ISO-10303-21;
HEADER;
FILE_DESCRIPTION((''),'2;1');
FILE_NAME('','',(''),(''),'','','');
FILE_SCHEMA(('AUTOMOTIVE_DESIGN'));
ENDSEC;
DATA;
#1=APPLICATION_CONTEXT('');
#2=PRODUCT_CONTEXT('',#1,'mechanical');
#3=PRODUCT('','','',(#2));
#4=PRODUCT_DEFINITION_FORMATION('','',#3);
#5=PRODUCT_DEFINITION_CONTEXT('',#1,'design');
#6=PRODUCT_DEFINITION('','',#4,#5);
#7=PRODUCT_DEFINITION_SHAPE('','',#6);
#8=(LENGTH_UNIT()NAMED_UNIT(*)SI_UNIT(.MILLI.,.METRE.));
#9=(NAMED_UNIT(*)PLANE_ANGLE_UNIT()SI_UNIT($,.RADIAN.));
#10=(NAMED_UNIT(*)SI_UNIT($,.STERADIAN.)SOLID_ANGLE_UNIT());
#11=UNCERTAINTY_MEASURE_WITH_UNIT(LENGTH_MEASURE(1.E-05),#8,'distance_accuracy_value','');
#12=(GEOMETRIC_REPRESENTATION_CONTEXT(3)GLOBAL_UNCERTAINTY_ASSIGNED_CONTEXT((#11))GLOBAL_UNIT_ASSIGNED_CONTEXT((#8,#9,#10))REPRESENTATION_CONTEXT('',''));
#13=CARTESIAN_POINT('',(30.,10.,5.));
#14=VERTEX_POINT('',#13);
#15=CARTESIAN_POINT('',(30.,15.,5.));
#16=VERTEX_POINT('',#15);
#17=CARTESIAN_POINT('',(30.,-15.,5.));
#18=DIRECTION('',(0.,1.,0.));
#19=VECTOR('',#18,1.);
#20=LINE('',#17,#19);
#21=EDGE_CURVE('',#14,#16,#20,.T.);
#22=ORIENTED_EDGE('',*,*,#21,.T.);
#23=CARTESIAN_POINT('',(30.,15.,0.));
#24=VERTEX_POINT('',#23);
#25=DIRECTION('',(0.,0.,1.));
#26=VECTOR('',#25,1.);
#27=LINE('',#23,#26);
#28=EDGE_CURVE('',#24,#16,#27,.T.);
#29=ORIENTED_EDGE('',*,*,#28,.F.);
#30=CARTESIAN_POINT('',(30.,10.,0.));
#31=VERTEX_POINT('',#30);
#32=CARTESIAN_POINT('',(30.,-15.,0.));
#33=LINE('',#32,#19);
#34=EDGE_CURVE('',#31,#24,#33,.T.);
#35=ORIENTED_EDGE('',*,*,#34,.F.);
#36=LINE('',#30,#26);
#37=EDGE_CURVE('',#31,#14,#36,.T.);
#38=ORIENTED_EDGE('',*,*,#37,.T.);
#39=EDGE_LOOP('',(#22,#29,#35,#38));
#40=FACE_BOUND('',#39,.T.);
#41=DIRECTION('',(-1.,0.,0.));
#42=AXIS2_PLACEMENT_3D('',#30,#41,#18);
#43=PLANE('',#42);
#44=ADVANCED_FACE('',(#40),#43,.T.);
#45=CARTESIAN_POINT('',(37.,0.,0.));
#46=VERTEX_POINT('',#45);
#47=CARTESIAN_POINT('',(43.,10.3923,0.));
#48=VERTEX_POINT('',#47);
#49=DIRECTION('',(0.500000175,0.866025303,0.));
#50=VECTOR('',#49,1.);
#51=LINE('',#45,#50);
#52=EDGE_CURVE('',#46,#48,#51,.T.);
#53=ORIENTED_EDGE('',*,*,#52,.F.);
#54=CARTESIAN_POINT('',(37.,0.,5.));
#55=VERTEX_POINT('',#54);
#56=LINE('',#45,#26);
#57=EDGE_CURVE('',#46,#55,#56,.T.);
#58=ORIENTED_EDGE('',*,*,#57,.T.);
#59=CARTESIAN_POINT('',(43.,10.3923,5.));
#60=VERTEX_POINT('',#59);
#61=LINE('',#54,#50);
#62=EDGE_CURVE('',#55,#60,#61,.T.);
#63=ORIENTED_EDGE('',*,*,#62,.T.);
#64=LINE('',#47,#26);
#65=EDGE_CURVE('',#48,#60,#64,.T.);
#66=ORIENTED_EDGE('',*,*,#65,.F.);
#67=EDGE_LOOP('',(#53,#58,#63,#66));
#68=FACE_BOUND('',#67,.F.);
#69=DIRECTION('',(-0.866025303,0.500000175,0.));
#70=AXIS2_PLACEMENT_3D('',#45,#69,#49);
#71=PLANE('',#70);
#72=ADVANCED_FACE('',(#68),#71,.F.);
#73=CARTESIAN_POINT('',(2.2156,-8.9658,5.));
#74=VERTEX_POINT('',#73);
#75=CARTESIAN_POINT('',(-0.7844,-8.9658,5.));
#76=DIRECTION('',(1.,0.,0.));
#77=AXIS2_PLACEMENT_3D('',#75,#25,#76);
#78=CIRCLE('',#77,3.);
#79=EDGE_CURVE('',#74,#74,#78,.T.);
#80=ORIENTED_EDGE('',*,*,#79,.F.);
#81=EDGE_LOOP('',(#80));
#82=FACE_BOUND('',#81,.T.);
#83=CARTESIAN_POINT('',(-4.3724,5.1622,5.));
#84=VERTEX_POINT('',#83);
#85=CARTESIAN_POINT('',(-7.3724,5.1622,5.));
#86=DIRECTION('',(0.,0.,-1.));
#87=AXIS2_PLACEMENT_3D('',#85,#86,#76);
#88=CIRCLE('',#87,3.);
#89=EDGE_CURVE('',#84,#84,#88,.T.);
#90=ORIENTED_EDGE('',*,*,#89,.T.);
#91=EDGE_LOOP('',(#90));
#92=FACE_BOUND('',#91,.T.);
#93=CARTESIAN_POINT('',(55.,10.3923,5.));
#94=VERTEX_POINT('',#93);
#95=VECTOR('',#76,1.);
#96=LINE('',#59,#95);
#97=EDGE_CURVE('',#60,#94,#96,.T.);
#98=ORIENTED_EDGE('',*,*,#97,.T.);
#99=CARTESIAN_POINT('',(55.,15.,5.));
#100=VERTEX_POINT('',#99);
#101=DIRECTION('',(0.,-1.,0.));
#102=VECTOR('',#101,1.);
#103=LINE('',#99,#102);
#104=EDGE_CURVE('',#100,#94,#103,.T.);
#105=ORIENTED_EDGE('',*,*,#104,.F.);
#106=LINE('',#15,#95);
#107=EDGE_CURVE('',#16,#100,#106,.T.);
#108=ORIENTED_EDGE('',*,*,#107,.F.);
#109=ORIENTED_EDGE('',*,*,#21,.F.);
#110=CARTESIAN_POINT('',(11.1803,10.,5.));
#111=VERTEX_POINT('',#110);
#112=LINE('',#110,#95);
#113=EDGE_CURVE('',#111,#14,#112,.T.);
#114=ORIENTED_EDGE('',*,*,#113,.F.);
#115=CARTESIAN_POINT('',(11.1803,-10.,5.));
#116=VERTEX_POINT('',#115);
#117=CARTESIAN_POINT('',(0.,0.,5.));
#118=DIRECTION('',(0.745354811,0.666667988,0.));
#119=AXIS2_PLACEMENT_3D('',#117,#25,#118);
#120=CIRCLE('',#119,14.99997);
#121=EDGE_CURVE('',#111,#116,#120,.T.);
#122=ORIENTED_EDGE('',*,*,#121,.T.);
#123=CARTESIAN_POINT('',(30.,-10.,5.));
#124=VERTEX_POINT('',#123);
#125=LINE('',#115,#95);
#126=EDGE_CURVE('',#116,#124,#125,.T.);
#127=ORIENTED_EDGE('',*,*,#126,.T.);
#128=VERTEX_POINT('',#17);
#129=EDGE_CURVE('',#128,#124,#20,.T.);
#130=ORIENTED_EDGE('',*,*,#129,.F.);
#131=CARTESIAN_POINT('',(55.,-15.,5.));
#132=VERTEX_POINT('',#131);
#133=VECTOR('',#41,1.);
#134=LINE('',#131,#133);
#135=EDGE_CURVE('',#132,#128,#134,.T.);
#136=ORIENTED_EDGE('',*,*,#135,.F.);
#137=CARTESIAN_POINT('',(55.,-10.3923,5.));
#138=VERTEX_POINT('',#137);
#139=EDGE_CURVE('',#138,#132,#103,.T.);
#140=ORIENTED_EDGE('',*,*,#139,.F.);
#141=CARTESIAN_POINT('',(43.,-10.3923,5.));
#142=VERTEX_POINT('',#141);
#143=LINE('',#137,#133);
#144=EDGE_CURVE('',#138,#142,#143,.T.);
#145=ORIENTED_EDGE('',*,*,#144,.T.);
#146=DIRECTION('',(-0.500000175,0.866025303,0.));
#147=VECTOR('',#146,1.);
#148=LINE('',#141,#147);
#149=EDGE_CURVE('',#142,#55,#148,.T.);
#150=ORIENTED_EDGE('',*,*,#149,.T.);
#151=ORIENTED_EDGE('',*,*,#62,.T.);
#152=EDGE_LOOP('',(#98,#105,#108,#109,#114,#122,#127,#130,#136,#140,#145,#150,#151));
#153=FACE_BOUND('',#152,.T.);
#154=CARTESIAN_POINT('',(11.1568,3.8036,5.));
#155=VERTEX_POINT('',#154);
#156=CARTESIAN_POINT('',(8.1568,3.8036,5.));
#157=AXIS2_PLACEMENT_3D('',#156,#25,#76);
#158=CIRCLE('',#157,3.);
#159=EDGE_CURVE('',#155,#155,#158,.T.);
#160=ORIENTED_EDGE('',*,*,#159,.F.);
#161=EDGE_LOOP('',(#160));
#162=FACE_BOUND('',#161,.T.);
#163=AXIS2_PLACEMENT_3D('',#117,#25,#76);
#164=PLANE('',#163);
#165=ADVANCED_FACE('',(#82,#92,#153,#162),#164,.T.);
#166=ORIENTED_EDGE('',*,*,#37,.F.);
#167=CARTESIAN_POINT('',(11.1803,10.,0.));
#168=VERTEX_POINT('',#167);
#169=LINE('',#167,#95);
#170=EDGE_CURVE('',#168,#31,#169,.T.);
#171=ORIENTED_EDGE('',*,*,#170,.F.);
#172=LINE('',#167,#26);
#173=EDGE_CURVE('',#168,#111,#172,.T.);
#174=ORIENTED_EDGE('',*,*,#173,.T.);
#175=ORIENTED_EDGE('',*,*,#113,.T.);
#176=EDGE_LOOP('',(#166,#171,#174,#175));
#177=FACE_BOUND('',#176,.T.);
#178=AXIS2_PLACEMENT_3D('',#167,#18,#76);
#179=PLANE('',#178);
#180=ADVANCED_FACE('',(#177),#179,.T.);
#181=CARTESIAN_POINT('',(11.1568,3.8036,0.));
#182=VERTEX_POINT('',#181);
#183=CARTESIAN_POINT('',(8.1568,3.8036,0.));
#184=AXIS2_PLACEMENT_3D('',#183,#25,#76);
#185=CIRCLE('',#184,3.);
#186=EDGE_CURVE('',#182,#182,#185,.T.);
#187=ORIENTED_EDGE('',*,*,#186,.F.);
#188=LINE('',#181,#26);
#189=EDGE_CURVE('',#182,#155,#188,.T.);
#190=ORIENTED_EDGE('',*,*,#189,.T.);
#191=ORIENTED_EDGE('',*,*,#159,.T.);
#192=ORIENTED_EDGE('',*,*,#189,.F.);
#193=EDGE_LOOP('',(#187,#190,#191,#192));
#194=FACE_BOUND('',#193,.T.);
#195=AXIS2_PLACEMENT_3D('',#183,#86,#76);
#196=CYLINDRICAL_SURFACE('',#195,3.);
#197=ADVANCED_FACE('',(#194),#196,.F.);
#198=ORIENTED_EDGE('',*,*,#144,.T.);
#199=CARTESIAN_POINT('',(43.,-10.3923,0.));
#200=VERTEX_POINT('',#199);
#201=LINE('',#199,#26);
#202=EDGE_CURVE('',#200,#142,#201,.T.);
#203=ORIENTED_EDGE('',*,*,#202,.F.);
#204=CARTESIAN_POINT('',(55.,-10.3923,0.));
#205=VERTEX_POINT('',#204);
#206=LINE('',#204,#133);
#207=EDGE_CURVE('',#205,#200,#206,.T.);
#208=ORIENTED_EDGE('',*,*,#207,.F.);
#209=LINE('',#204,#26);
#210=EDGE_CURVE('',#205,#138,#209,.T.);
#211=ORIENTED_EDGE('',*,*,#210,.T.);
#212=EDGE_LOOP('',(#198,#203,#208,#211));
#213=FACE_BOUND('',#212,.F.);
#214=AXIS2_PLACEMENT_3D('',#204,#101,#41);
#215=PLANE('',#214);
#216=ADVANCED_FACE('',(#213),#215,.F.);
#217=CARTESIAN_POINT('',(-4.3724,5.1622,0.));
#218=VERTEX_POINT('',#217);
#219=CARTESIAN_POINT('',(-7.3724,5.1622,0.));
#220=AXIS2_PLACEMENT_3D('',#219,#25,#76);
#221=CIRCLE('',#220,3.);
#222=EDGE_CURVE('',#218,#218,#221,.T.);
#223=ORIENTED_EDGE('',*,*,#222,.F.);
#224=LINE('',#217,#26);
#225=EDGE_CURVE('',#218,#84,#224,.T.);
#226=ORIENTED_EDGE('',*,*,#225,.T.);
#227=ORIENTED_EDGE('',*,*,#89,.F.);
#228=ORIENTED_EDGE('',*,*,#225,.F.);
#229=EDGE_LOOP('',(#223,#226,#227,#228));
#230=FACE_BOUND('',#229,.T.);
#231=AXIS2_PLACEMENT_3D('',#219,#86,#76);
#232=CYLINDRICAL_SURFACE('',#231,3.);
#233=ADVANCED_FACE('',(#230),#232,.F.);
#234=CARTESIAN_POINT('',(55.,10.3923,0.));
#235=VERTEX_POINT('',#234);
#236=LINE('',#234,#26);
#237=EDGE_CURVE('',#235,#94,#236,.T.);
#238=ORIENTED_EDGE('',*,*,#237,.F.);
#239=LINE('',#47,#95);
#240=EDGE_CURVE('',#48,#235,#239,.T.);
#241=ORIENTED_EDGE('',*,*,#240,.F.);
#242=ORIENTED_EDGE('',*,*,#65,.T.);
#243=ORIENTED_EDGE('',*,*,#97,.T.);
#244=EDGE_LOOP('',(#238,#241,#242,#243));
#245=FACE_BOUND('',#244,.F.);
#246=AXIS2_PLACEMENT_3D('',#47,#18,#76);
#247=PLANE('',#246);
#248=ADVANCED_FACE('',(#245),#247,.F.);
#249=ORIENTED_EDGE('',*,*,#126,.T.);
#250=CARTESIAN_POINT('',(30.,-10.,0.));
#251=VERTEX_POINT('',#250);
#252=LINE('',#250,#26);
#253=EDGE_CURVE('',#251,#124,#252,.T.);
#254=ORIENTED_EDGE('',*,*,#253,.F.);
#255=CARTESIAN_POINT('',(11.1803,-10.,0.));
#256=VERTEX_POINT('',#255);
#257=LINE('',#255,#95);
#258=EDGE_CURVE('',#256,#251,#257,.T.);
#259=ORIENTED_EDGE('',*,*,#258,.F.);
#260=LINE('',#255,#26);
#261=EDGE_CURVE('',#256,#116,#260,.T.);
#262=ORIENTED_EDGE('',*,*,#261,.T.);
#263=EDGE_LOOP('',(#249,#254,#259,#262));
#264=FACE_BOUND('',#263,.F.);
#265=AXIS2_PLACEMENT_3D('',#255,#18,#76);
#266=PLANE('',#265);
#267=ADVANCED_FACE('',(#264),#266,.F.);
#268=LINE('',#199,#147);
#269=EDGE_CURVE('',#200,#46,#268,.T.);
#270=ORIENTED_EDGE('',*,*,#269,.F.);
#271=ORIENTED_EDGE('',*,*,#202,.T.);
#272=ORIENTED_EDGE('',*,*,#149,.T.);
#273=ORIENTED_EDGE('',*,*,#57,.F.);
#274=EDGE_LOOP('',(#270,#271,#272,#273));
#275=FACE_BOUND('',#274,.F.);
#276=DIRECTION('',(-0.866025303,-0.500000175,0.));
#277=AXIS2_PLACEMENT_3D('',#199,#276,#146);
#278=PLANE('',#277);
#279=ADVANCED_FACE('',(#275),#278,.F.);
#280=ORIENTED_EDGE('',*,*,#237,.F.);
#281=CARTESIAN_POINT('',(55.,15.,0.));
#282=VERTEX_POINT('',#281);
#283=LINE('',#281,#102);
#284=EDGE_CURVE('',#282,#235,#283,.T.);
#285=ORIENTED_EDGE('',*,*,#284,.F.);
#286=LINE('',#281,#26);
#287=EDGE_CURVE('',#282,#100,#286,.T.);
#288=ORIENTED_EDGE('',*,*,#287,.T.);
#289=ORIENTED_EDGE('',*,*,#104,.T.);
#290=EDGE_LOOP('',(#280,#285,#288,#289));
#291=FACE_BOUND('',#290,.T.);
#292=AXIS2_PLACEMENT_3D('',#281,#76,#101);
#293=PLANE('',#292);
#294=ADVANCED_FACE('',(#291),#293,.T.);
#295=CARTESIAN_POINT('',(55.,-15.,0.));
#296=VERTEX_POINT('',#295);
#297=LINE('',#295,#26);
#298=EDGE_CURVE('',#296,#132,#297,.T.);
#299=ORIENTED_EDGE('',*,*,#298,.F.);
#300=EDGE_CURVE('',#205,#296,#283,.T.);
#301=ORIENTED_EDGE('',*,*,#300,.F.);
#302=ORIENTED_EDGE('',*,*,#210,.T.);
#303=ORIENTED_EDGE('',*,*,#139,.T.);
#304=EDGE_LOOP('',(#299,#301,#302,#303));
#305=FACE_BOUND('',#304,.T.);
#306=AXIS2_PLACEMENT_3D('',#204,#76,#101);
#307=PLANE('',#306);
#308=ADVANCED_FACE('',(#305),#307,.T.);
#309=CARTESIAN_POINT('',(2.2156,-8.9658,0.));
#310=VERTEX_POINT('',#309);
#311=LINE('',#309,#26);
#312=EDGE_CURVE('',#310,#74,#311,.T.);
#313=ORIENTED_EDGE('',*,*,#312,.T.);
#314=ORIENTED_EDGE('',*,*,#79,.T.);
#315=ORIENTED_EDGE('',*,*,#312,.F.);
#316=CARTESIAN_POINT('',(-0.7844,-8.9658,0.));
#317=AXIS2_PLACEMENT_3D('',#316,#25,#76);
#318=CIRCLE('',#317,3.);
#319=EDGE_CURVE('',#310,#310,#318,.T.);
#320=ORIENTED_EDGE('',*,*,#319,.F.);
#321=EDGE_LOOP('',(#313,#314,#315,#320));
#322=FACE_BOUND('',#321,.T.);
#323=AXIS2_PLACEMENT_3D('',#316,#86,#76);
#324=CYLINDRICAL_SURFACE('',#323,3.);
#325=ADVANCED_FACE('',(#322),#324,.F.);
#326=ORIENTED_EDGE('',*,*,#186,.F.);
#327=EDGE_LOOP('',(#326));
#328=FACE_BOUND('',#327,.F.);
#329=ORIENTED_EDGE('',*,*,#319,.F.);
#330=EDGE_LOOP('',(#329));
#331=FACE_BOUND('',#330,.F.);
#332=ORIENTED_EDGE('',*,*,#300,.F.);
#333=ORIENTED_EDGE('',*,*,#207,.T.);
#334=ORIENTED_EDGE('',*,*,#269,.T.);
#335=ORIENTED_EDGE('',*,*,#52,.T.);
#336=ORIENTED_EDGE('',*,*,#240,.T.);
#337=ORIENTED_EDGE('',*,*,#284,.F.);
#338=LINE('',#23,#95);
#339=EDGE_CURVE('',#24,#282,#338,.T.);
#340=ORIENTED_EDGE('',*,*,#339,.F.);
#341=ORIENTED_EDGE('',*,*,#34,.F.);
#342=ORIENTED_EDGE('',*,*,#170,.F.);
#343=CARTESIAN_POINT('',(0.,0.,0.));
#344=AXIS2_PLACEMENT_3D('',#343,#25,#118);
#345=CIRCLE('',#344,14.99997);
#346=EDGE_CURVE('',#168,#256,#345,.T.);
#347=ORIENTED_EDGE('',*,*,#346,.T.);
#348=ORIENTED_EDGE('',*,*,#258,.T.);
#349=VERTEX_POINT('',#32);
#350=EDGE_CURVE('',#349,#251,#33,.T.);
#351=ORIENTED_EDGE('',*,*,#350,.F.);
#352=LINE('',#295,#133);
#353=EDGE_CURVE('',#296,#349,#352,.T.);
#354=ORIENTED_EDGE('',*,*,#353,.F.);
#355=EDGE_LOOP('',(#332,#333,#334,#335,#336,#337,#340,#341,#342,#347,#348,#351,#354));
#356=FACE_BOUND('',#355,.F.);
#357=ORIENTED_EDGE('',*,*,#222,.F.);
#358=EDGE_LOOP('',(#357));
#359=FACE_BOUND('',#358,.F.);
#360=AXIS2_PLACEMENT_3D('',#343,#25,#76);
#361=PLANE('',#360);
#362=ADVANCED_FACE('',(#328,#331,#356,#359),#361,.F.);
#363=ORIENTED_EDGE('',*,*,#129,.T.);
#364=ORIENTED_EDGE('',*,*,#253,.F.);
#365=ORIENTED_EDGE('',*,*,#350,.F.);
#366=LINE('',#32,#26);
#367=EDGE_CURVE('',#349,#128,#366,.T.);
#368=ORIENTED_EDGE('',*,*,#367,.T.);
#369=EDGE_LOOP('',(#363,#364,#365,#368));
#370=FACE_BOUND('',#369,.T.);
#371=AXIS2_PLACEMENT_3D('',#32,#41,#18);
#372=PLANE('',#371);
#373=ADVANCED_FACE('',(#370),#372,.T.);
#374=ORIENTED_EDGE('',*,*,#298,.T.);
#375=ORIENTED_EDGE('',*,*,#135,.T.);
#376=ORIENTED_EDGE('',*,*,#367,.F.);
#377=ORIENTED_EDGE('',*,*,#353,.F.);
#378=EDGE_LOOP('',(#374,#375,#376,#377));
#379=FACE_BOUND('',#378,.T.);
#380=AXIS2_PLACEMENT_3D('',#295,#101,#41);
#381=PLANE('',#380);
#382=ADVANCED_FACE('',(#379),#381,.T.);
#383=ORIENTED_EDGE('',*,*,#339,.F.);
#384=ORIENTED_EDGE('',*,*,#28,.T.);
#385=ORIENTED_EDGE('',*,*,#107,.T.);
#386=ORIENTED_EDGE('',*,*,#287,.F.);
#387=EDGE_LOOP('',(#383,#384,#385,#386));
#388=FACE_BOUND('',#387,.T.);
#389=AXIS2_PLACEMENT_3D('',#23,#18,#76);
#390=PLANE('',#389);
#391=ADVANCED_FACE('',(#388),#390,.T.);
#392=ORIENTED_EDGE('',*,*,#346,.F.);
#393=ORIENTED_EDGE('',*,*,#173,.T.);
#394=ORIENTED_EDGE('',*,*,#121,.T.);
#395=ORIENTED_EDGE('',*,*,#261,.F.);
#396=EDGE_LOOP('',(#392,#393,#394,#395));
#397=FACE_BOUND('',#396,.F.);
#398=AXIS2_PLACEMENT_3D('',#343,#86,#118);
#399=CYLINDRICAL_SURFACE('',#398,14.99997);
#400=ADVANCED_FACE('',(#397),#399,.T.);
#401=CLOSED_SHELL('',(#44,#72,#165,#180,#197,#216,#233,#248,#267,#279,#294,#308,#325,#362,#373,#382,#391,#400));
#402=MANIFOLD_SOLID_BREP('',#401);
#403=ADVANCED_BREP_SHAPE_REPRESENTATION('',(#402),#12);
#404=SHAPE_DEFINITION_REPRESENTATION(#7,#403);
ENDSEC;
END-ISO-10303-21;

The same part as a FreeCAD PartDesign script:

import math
import FreeCAD as App
import Part
import Sketcher
from FreeCAD import Vector
Q = App.Units.Quantity

doc = App.newDocument("Part")
body = doc.addObject("PartDesign::Body", "Body")

# Sketch on XY plane
sketch1 = doc.addObject("Sketcher::SketchObject", "Sketch")
body.addObject(sketch1)
sketch1.AttachmentSupport = (doc.XY_Plane, [""])
sketch1.MapMode = "FlatFace"
sketch1.addGeometry(Part.LineSegment(Vector(30, 10, 0), Vector(11.2, 10, 0)), False)
sketch1.addGeometry(Part.ArcOfCircle(Part.Circle(Vector(0, 0, 0), Vector(0, 0, 1), 15), math.radians(42), math.radians(318)), False)
sketch1.addGeometry(Part.LineSegment(Vector(11.2, -10, 0), Vector(30, -10, 0)), False)
sketch1.addGeometry(Part.LineSegment(Vector(30, -10, 0), Vector(30, -15, 0)), False)
sketch1.addGeometry(Part.LineSegment(Vector(30, -15, 0), Vector(55, -15, 0)), False)
sketch1.addGeometry(Part.LineSegment(Vector(55, -15, 0), Vector(55, -10.4, 0)), False)
sketch1.addGeometry(Part.LineSegment(Vector(55, -10.4, 0), Vector(43, -10.4, 0)), False)
sketch1.addGeometry(Part.LineSegment(Vector(43, -10.4, 0), Vector(37, 0, 0)), False)
sketch1.addGeometry(Part.LineSegment(Vector(37, 0, 0), Vector(43, 10.4, 0)), False)
sketch1.addGeometry(Part.LineSegment(Vector(43, 10.4, 0), Vector(55, 10.4, 0)), False)
sketch1.addGeometry(Part.LineSegment(Vector(55, 10.4, 0), Vector(55, 15, 0)), False)
sketch1.addGeometry(Part.LineSegment(Vector(55, 15, 0), Vector(30, 15, 0)), False)
sketch1.addGeometry(Part.LineSegment(Vector(30, 15, 0), Vector(30, 10, 0)), False)
sketch1.addGeometry(Part.Circle(Vector(-0.8, -9, 0), Vector(0, 0, 1), 3), False)
sketch1.addGeometry(Part.Circle(Vector(-7.4, 5.2, 0), Vector(0, 0, 1), 3), False)
sketch1.addGeometry(Part.Circle(Vector(8.2, 3.8, 0), Vector(0, 0, 1), 3), False)
sketch1.addConstraint(Sketcher.Constraint("Coincident", 0, 2, 1, 1))
sketch1.addConstraint(Sketcher.Constraint("Coincident", 1, 2, 2, 1))
sketch1.addConstraint(Sketcher.Constraint("Coincident", 2, 2, 3, 1))
sketch1.addConstraint(Sketcher.Constraint("Coincident", 3, 2, 4, 1))
sketch1.addConstraint(Sketcher.Constraint("Coincident", 4, 2, 5, 1))
sketch1.addConstraint(Sketcher.Constraint("Coincident", 5, 2, 6, 1))
sketch1.addConstraint(Sketcher.Constraint("Coincident", 6, 2, 7, 1))
sketch1.addConstraint(Sketcher.Constraint("Coincident", 7, 2, 8, 1))
sketch1.addConstraint(Sketcher.Constraint("Coincident", 8, 2, 9, 1))
sketch1.addConstraint(Sketcher.Constraint("Coincident", 9, 2, 10, 1))
sketch1.addConstraint(Sketcher.Constraint("Coincident", 10, 2, 11, 1))
sketch1.addConstraint(Sketcher.Constraint("Coincident", 11, 2, 12, 1))
sketch1.addConstraint(Sketcher.Constraint("Coincident", 12, 2, 0, 1))
sketch1.addConstraint(Sketcher.Constraint("Horizontal", 0))
sketch1.addConstraint(Sketcher.Constraint("Horizontal", 2))
sketch1.addConstraint(Sketcher.Constraint("Vertical", 3))
sketch1.addConstraint(Sketcher.Constraint("Horizontal", 4))
sketch1.addConstraint(Sketcher.Constraint("Vertical", 5))
sketch1.addConstraint(Sketcher.Constraint("Horizontal", 6))
sketch1.addConstraint(Sketcher.Constraint("Horizontal", 9))
sketch1.addConstraint(Sketcher.Constraint("Vertical", 10))
sketch1.addConstraint(Sketcher.Constraint("Horizontal", 11))
sketch1.addConstraint(Sketcher.Constraint("Vertical", 12))
sketch1.addConstraint(Sketcher.Constraint("Coincident", 1, 3, -1, 1))
sketch1.addConstraint(Sketcher.Constraint("Equal", 13, 14))
sketch1.addConstraint(Sketcher.Constraint("Equal", 14, 15))
sketch1.addConstraint(Sketcher.Constraint("Symmetric", 6, 2, 8, 2, -1))
sketch1.addConstraint(Sketcher.Constraint("Symmetric", 4, 2, 10, 2, -1))
sketch1.addConstraint(Sketcher.Constraint("Symmetric", 2, 2, 12, 2, -1))
sketch1.addConstraint(Sketcher.Constraint("PointOnObject", 7, 2, -1))
sketch1.addConstraint(Sketcher.Constraint("Diameter", 13, Q("6 mm")))
sketch1.addConstraint(Sketcher.Constraint("Radius", 1, Q("15 mm")))
sketch1.addConstraint(Sketcher.Constraint("DistanceX", 4, 1, 4, 2, Q("25 mm")))
sketch1.addConstraint(Sketcher.Constraint("DistanceY", -1, 1, 0, 2, Q("10 mm")))
sketch1.addConstraint(Sketcher.Constraint("DistanceX", -1, 1, 2, 2, Q("30 mm")))
sketch1.addConstraint(Sketcher.Constraint("DistanceY", 3, 2, -1, 1, Q("15 mm")))
sketch1.addConstraint(Sketcher.Constraint("DistanceX", 7, 2, 6, 2, Q("6 mm")))
sketch1.addConstraint(Sketcher.Constraint("DistanceX", 6, 2, 6, 1, Q("12 mm")))
sketch1.addConstraint(Sketcher.Constraint("Angle", 7, Q("120 deg")))
sketch1.addConstraint(Sketcher.Constraint("DistanceX", 14, 3, 13, 3, Q("6.588 mm")))
sketch1.addConstraint(Sketcher.Constraint("DistanceY", 13, 3, 14, 3, Q("14.128 mm")))
sketch1.addConstraint(Sketcher.Constraint("DistanceX", 13, 3, -1, 1, Q("0.7844 mm")))
sketch1.addConstraint(Sketcher.Constraint("DistanceY", 13, 3, -1, 1, Q("8.9658 mm")))
sketch1.addConstraint(Sketcher.Constraint("DistanceX", -1, 1, 15, 3, Q("8.1568 mm")))
sketch1.addConstraint(Sketcher.Constraint("DistanceY", -1, 1, 15, 3, Q("3.8036 mm")))
pad1 = doc.addObject("PartDesign::Pad", "Pad")
body.addObject(pad1)
pad1.Profile = sketch1
pad1.Length = 5

doc.recompute()
